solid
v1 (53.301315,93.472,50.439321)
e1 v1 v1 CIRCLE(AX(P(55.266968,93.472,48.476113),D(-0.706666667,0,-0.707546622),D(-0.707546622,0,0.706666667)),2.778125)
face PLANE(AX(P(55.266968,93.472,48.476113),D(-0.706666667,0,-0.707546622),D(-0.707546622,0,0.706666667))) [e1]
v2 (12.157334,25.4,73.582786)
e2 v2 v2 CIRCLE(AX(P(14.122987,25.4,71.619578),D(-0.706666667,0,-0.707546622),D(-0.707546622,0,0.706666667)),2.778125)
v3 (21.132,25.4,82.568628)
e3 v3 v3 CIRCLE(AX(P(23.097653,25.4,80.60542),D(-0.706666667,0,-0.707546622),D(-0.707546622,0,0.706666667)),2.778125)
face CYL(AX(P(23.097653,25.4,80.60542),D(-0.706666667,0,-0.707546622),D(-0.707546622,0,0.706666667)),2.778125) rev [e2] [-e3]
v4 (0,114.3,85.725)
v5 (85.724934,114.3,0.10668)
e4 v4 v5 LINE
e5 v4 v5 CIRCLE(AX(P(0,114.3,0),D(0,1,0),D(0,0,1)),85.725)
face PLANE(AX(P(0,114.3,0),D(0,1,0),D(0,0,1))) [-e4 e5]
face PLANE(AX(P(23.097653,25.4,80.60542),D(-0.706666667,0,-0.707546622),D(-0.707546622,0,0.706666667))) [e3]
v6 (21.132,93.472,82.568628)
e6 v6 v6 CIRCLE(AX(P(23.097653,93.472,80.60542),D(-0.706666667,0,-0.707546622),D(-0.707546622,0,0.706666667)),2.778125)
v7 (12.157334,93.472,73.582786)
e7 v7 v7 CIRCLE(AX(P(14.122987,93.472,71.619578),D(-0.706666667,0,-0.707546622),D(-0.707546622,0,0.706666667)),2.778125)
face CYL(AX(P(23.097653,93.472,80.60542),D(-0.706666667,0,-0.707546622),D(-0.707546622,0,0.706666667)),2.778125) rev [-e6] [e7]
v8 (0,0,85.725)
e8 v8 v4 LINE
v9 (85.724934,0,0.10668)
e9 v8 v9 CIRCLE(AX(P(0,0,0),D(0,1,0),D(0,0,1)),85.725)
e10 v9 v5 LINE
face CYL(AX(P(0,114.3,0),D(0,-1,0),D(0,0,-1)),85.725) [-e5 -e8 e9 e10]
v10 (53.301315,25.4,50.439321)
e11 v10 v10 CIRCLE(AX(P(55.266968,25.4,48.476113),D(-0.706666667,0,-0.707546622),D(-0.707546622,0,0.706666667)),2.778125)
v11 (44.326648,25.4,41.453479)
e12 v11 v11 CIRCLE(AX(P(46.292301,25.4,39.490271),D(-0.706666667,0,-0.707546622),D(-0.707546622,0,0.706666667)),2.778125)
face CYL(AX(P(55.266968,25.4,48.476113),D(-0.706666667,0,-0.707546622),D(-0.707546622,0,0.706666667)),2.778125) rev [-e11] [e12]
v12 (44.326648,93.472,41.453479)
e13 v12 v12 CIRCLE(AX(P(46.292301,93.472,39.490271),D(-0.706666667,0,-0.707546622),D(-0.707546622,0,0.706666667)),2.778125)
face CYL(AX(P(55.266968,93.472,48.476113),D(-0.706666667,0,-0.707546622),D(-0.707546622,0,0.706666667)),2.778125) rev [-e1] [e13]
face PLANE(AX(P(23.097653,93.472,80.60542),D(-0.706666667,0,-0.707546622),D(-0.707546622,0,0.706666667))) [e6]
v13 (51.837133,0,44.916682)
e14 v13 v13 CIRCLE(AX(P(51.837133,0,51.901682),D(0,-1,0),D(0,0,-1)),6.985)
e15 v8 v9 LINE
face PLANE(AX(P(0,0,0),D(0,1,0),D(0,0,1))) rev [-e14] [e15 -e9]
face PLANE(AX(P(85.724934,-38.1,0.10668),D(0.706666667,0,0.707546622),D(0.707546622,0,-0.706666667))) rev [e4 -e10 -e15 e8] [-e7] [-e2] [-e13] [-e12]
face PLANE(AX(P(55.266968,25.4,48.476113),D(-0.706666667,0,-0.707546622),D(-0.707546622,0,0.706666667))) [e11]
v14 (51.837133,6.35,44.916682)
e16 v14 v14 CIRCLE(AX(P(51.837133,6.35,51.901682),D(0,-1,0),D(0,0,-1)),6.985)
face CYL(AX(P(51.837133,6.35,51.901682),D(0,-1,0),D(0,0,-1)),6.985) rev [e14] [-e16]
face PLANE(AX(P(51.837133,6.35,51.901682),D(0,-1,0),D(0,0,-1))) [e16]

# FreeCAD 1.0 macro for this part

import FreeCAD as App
import Part
import Sketcher
from FreeCAD import Vector
Q = App.Units.Quantity


def add_polygon(sketch, points):
    """Adds a closed chain of lines whose ends are joined by coincident constraints."""
    first, n = sketch.GeometryCount, len(points)
    for a, b in zip(points, points[1:] + points[:1]):
        sketch.addGeometry(Part.LineSegment(App.Vector(*a, 0), App.Vector(*b, 0)), False)
    for i in range(n):
        sketch.addConstraint(Sketcher.Constraint("Coincident", first + i, 2, first + (i + 1) % n, 1))

doc = App.newDocument("Part")
params = doc.addObject("Spreadsheet::Sheet", "Params")
for row, (alias, value) in enumerate([
    ("sketch1_diameter", "6.75 in"),
    ("pad1_length", "4.5 in"),
    ("sketch2_length", "4.77 in"),
    ("pocket1_length", "6 in"),
    ("sketch3_diameter", "0.21875 in"),
    ("pocket2_length", "0.5 in"),
    ("sketch4_diameter", "0.55 in"),
    ("pocket3_length", "0.25 in"),
], start=1):
    params.set(f"A{row}", alias)
    params.set(f"B{row}", "=" + value)
    params.setAlias(f"B{row}", alias)

body = doc.addObject("PartDesign::Body", "Body")

# Sketch on XZ plane
sketch1 = body.newObject("Sketcher::SketchObject", "Sketch")
sketch1.AttachmentSupport = (doc.getObject("XZ_Plane"), [""])
sketch1.MapMode = "FlatFace"
sketch1.addGeometry(Part.Circle(Vector(0, 0, 0), Vector(0, 0, 1), 86), False)
sketch1.addConstraint([
    Sketcher.Constraint("Coincident", 0, 3, -1, 1),
    Sketcher.Constraint("Diameter", 0, Q("6.75 in")),
])
sketch1.setExpression("Constraints[1]", "Params.sketch1_diameter")
pad1 = body.newObject("PartDesign::Pad", "Pad")
pad1.Profile = sketch1
pad1.setExpression("Length", "Params.pad1_length")
pad1.Reversed = True

# Sketch on XZ plane
sketch2 = body.newObject("Sketcher::SketchObject", "Sketch001")
sketch2.AttachmentSupport = (doc.getObject("XZ_Plane"), [""])
sketch2.MapMode = "FlatFace"
sketch2.AttachmentOffset = App.Placement(Vector(0, 0, -4.5 * 25.4), App.Rotation())
add_polygon(sketch2, [(0, 86), (86, 0), (110, -31), (19, -102), (-137, -46), (-46, 97)])  # lines 0-5
sketch2.addConstraint([
    Sketcher.Constraint("PointOnObject", 5, 2, -2),
    Sketcher.Constraint("Distance", 0, Q("4.77 in")),
    Sketcher.Constraint("DistanceY", -1, 1, 5, 2, Q("3.375 in")),
    Sketcher.Constraint("DistanceY", -1, 1, 0, 2, Q("0.0042 in")),
    Sketcher.Constraint("DistanceX", -1, 1, 2, 2, Q("19.125301 mm")),
    Sketcher.Constraint("DistanceY", 0, 2, 4, 2, Q("96.6127 mm")),
    Sketcher.Constraint("Distance", 1, Q("39.040629 mm")),
    Sketcher.Constraint("Distance", 4, Q("169.841122 mm")),
    Sketcher.Constraint("DistanceY", 1, 2, -1, 1, Q("30.600482 mm")),
    Sketcher.Constraint("DistanceX", 3, 2, -1, 1, Q("137.42895 mm")),
    Sketcher.Constraint("DistanceY", 3, 2, -1, 1, Q("46.173941 mm")),
    Sketcher.Constraint("DistanceY", 2, 2, 1, 2, Q("71.310051 mm")),
])
sketch2.setExpression("Constraints[7]", "Params.sketch2_length")
pocket1 = body.newObject("PartDesign::Pocket", "Pocket")
pocket1.Profile = sketch2
pocket1.setExpression("Length", "Params.pocket1_length")
pocket1.Reversed = True

# Sketch on an angled plane
sketch3 = body.newObject("Sketcher::SketchObject", "Sketch002")
sketch3.Placement = App.Placement(Vector(42.862467, 0, 42.91584), App.Rotation(Vector(-0.707546622, 0, 0.706666667), Vector(0, 1.000000001, 0), Vector(-0.706666667, 0, -0.707546622), "ZXY"))
sketch3.addGeometry([
    Part.Circle(Vector(40.6, 93.5, 0), Vector(0, 0, 1), 2.8),
    Part.Circle(Vector(-4.8, 93.5, 0), Vector(0, 0, 1), 2.8),
    Part.Circle(Vector(-4.8, 25.4, 0), Vector(0, 0, 1), 2.8),
    Part.Circle(Vector(40.6, 25.4, 0), Vector(0, 0, 1), 2.8),
], False)
sketch3.addConstraint([
    Sketcher.Constraint("Equal", 0, 1),
    Sketcher.Constraint("Equal", 1, 2),
    Sketcher.Constraint("Equal", 2, 3),
    Sketcher.Constraint("Horizontal", 0, 3, 1, 3),
    Sketcher.Constraint("Horizontal", 2, 3, 3, 3),
    Sketcher.Constraint("Vertical", 1, 3, 2, 3),
    Sketcher.Constraint("Vertical", 0, 3, 3, 3),
    Sketcher.Constraint("Diameter", 0, Q("0.21875 in")),
    Sketcher.Constraint("DistanceY", -1, 1, 2, 3, Q("1 in")),
    Sketcher.Constraint("DistanceY", -1, 1, 0, 3, Q("3.68 in")),
    Sketcher.Constraint("DistanceX", 1, 3, 0, 3, Q("1.79 in")),
    Sketcher.Constraint("DistanceX", -1, 1, 0, 3, Q("40.618497 mm")),
])
sketch3.setExpression("Constraints[7]", "Params.sketch3_diameter")
pocket2 = body.newObject("PartDesign::Pocket", "Pocket001")
pocket2.Profile = sketch3
pocket2.setExpression("Length", "Params.pocket2_length")

# Sketch on XZ plane
sketch4 = body.newObject("Sketcher::SketchObject", "Sketch003")
sketch4.AttachmentSupport = (doc.getObject("XZ_Plane"), [""])
sketch4.MapMode = "FlatFace"
sketch4.addGeometry(Part.Circle(Vector(52, 52, 0), Vector(0, 0, 1), 7), False)
sketch4.addConstraint([
    Sketcher.Constraint("Diameter", 0, Q("0.55 in")),
    Sketcher.Constraint("DistanceX", -1, 1, 0, 3, Q("51.837133 mm")),
    Sketcher.Constraint("DistanceY", -1, 1, 0, 3, Q("51.901682 mm")),
])
sketch4.setExpression("Constraints[0]", "Params.sketch4_diameter")
pocket3 = body.newObject("PartDesign::Pocket", "Pocket002")
pocket3.Profile = sketch4
pocket3.setExpression("Length", "Params.pocket3_length")

doc.recompute()
